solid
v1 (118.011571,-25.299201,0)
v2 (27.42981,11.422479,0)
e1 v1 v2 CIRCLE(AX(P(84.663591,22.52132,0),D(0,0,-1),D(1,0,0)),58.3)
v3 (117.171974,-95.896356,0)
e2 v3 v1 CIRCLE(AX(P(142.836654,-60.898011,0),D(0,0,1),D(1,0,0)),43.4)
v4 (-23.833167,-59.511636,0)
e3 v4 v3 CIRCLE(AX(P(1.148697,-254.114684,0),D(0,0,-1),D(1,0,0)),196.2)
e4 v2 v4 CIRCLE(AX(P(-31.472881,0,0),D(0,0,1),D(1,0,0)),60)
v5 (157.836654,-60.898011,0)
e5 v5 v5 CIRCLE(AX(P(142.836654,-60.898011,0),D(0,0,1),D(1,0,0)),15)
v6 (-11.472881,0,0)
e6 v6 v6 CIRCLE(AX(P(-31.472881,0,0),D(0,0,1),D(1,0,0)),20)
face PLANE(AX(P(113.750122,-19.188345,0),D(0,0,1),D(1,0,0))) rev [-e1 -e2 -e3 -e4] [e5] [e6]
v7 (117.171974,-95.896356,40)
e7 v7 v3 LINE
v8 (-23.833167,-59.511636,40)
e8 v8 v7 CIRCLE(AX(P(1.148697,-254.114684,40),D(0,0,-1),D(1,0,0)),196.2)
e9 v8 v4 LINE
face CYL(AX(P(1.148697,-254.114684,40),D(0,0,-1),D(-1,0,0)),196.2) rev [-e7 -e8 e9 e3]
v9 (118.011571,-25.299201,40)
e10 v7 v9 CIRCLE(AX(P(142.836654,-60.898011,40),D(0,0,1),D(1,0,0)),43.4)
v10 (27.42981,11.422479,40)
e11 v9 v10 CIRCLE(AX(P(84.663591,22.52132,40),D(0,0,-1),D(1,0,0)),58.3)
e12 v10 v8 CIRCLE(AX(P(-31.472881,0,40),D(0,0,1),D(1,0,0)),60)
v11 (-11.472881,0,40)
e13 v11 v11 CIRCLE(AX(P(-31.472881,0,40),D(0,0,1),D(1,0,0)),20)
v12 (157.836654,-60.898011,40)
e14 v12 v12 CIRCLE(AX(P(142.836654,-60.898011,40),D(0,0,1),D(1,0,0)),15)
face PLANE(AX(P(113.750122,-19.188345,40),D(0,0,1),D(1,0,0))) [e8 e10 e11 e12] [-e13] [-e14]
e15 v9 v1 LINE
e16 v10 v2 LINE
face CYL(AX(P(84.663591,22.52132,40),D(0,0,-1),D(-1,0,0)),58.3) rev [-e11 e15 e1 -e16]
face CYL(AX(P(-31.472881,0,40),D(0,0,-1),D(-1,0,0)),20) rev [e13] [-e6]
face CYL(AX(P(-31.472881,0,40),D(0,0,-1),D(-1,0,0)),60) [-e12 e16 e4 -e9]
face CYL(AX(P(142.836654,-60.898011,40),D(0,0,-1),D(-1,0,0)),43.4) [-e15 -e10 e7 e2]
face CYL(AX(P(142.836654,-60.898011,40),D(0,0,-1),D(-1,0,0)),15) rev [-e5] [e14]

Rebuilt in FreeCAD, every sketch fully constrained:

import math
import FreeCAD as App
import Part
import Sketcher
Q = App.Units.Quantity

doc = App.newDocument("Part")
body = doc.addObject("PartDesign::Body", "Body")

sketch1 = doc.addObject("Sketcher::SketchObject", "Sketch")
body.addObject(sketch1)
sketch1.AttachmentSupport = (doc.XY_Plane, [""])
sketch1.MapMode = "FlatFace"
sketch1.addGeometry([
    Part.ArcOfCircle(Part.Circle(App.Vector(-31, 0, 0), App.Vector(0, 0, 1), 60), math.radians(11), math.radians(277)),
    Part.ArcOfCircle(Part.Circle(App.Vector(1, -254, 0), App.Vector(0, 0, 1), 196), math.radians(54), math.radians(97)),
    Part.ArcOfCircle(Part.Circle(App.Vector(143, -61, 0), App.Vector(0, 0, 1), 43), math.radians(-126), math.radians(125)),
    Part.ArcOfCircle(Part.Circle(App.Vector(85, 23, 0), App.Vector(0, 0, 1), 58), math.radians(-169), math.radians(-55)),
    Part.Circle(App.Vector(143, -61, 0), App.Vector(0, 0, 1), 15),
    Part.Circle(App.Vector(-31, 0, 0), App.Vector(0, 0, 1), 20),
], False)
sketch1.addConstraint([
    Sketcher.Constraint("Tangent", 0, 2, 1, 2),
    Sketcher.Constraint("Tangent", 1, 1, 2, 1),
    Sketcher.Constraint("Tangent", 2, 2, 3, 2),
    Sketcher.Constraint("Tangent", 3, 1, 0, 1),
    Sketcher.Constraint("Coincident", 4, 3, 2, 3),
    Sketcher.Constraint("Coincident", 5, 3, 0, 3),
    Sketcher.Constraint("PointOnObject", 0, 3, -1),
    Sketcher.Constraint("Diameter", 4, Q("30 mm")),
    Sketcher.Constraint("Diameter", 5, Q("40 mm")),
    Sketcher.Constraint("Radius", 0, Q("60 mm")),
    Sketcher.Constraint("Radius", 1, Q("196.2 mm")),
    Sketcher.Constraint("Radius", 2, Q("43.4 mm")),
    Sketcher.Constraint("Radius", 3, Q("58.3 mm")),
    Sketcher.Constraint("DistanceY", 2, 2, -1, 1, Q("25.299201 mm")),
    Sketcher.Constraint("DistanceX", 0, 3, -1, 1, Q("31.472881 mm")),
    Sketcher.Constraint("DistanceY", 2, 3, -1, 1, Q("60.898011 mm")),
])
pad1 = doc.addObject("PartDesign::Pad", "Pad")
body.addObject(pad1)
pad1.Profile = sketch1
pad1.Length = 40

doc.recompute()
